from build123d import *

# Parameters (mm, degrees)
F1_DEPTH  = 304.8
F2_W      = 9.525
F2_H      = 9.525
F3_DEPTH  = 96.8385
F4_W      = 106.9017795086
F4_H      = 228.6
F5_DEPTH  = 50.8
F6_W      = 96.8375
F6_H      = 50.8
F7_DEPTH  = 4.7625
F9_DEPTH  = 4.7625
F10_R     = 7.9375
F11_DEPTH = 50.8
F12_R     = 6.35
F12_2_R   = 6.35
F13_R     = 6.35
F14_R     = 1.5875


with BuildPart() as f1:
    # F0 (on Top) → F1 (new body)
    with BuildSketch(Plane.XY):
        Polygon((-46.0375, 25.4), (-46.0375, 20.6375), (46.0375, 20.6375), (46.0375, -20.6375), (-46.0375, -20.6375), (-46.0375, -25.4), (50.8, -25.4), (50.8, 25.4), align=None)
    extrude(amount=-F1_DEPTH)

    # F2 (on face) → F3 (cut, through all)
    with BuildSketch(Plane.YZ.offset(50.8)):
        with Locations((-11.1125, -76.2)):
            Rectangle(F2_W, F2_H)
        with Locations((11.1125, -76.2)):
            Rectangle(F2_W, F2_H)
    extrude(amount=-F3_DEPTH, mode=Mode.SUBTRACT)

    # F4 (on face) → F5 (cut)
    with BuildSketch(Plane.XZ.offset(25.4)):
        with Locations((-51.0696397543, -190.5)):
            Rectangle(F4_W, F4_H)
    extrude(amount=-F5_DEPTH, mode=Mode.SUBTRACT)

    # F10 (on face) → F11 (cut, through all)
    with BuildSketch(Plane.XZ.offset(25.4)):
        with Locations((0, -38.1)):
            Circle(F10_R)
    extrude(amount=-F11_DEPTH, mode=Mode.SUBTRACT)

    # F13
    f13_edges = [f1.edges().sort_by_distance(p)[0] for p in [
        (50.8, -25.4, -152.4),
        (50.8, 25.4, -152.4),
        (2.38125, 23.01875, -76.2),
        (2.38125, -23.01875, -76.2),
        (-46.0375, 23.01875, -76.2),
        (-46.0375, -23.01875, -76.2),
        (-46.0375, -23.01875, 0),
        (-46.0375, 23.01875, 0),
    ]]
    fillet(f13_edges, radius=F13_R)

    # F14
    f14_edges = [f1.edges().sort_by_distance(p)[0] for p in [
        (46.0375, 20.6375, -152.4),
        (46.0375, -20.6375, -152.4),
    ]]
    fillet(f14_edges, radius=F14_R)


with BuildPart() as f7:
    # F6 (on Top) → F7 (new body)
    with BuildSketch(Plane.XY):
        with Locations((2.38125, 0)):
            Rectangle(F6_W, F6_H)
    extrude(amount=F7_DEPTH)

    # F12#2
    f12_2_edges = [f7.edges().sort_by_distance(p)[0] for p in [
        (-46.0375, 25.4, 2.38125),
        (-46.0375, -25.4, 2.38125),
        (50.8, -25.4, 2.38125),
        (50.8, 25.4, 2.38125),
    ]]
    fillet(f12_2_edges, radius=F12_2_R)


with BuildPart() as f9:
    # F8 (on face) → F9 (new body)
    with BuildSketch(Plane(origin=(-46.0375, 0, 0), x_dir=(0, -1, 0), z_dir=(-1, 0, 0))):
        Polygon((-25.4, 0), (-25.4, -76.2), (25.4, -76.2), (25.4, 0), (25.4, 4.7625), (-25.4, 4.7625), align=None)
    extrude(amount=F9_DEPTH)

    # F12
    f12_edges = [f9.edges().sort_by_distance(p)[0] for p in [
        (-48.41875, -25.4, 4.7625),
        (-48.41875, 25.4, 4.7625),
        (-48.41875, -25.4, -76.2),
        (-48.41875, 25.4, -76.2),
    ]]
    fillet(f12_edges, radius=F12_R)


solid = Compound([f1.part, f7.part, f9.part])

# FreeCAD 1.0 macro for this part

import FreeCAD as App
import Part
import Sketcher
from FreeCAD import Vector
Q = App.Units.Quantity


def edges_at(feature, points):
    """Names of the edges that pass closest to the given points."""
    edges = feature.Shape.Edges
    near = lambda p: min(range(len(edges)), key=lambda i: edges[i].distToShape(Part.Vertex(*p))[0])
    return sorted({f"Edge{near(p) + 1}" for p in points})

doc = App.newDocument("Part")
params = doc.addObject("Spreadsheet::Sheet", "Params")
for row, (alias, value) in enumerate([
    ("sketch1_height", "2 in"),
    ("sketch1_width", "3.625 in"),
    ("sketch1_height2", "0.1875 in"),
    ("pad1_length", "12 in"),
    ("sketch2_width", "0.375 in"),
    ("sketch3_height", "9 in"),
    ("pocket2_length", "2 in"),
    ("sketch4_diameter", "0.625 in"),
    ("fillet_radius", "0.25 in"),
    ("fillet2_radius", "0.0625 in"),
    ("sketch5_height", "2 in"),
    ("sketch5_width", "3.8125 in"),
    ("pad2_length", "0.1875 in"),
    ("fillet3_radius", "0.25 in"),
    ("sketch6_width", "2 in"),
    ("sketch6_height", "3.1875 in"),
    ("pad3_length", "0.1875 in"),
    ("fillet4_radius", "0.25 in"),
], start=1):
    params.set(f"A{row}", alias)
    params.set(f"B{row}", "=" + value)
    params.setAlias(f"B{row}", alias)

body = doc.addObject("PartDesign::Body", "Body")

sketch1 = body.newObject("Sketcher::SketchObject", "Sketch")
sketch1.AttachmentSupport = (doc.getObject("XY_Plane"), [""])
sketch1.MapMode = "FlatFace"
sketch1.addGeometry(Part.LineSegment(Vector(-46.0375, 25.4, 0), Vector(-46.0375, 20.6375, 0)), False)
sketch1.addGeometry(Part.LineSegment(Vector(-46.0375, 20.6375, 0), Vector(46.0375, 20.6375, 0)), False)
sketch1.addGeometry(Part.LineSegment(Vector(46.0375, 20.6375, 0), Vector(46.0375, -20.6375, 0)), False)
sketch1.addGeometry(Part.LineSegment(Vector(46.0375, -20.6375, 0), Vector(-46.0375, -20.6375, 0)), False)
sketch1.addGeometry(Part.LineSegment(Vector(-46.0375, -20.6375, 0), Vector(-46.0375, -25.4, 0)), False)
sketch1.addGeometry(Part.LineSegment(Vector(-46.0375, -25.4, 0), Vector(50.8, -25.4, 0)), False)
sketch1.addGeometry(Part.LineSegment(Vector(50.8, -25.4, 0), Vector(50.8, 25.4, 0)), False)
sketch1.addGeometry(Part.LineSegment(Vector(50.8, 25.4, 0), Vector(-46.0375, 25.4, 0)), False)
sketch1.addConstraint(Sketcher.Constraint("Coincident", 0, 2, 1, 1))
sketch1.addConstraint(Sketcher.Constraint("Coincident", 1, 2, 2, 1))
sketch1.addConstraint(Sketcher.Constraint("Coincident", 2, 2, 3, 1))
sketch1.addConstraint(Sketcher.Constraint("Coincident", 3, 2, 4, 1))
sketch1.addConstraint(Sketcher.Constraint("Coincident", 4, 2, 5, 1))
sketch1.addConstraint(Sketcher.Constraint("Coincident", 5, 2, 6, 1))
sketch1.addConstraint(Sketcher.Constraint("Coincident", 6, 2, 7, 1))
sketch1.addConstraint(Sketcher.Constraint("Coincident", 7, 2, 0, 1))
sketch1.addConstraint(Sketcher.Constraint("Vertical", 0))
sketch1.addConstraint(Sketcher.Constraint("Horizontal", 1))
sketch1.addConstraint(Sketcher.Constraint("Vertical", 2))
sketch1.addConstraint(Sketcher.Constraint("Horizontal", 3))
sketch1.addConstraint(Sketcher.Constraint("Vertical", 4))
sketch1.addConstraint(Sketcher.Constraint("Horizontal", 5))
sketch1.addConstraint(Sketcher.Constraint("Vertical", 6))
sketch1.addConstraint(Sketcher.Constraint("Horizontal", 7))
sketch1.addConstraint(Sketcher.Constraint("Symmetric", 0, 2, 2, 2, -1, 1))
sketch1.addConstraint(Sketcher.Constraint("Symmetric", 4, 2, 7, 2, -1))
sketch1.addConstraint(Sketcher.Constraint("DistanceY", 6, 1, 6, 2, Q("2 in")))
sketch1.addConstraint(Sketcher.Constraint("DistanceX", -1, 1, 5, 2, Q("2 in")))
sketch1.addConstraint(Sketcher.Constraint("DistanceX", 1, 1, 1, 2, Q("3.625 in")))
sketch1.addConstraint(Sketcher.Constraint("DistanceY", 0, 2, 0, 1, Q("0.1875 in")))
sketch1.setExpression("Constraints[18]", "Params.sketch1_height")
sketch1.setExpression("Constraints[20]", "Params.sketch1_width")
sketch1.setExpression("Constraints[21]", "Params.sketch1_height2")
pad1 = body.newObject("PartDesign::Pad", "Pad")
pad1.Profile = sketch1
pad1.setExpression("Length", "Params.pad1_length")
pad1.Reversed = True

sketch2 = body.newObject("Sketcher::SketchObject", "Sketch001")
sketch2.AttachmentSupport = (doc.getObject("YZ_Plane"), [""])
sketch2.MapMode = "FlatFace"
sketch2.AttachmentOffset = App.Placement(Vector(0, 0, 2 * 25.4), App.Rotation())
sketch2.addGeometry(Part.LineSegment(Vector(-15.875, -71.4375, 0), Vector(-15.875, -80.9625, 0)), False)
sketch2.addGeometry(Part.LineSegment(Vector(-15.875, -80.9625, 0), Vector(-6.35, -80.9625, 0)), False)
sketch2.addGeometry(Part.LineSegment(Vector(-6.35, -80.9625, 0), Vector(-6.35, -71.4375, 0)), False)
sketch2.addGeometry(Part.LineSegment(Vector(-6.35, -71.4375, 0), Vector(-15.875, -71.4375, 0)), False)
sketch2.addGeometry(Part.LineSegment(Vector(6.35, -71.4375, 0), Vector(6.35, -80.9625, 0)), False)
sketch2.addGeometry(Part.LineSegment(Vector(6.35, -80.9625, 0), Vector(15.875, -80.9625, 0)), False)
sketch2.addGeometry(Part.LineSegment(Vector(15.875, -80.9625, 0), Vector(15.875, -71.4375, 0)), False)
sketch2.addGeometry(Part.LineSegment(Vector(15.875, -71.4375, 0), Vector(6.35, -71.4375, 0)), False)
sketch2.addConstraint(Sketcher.Constraint("Coincident", 0, 2, 1, 1))
sketch2.addConstraint(Sketcher.Constraint("Coincident", 1, 2, 2, 1))
sketch2.addConstraint(Sketcher.Constraint("Coincident", 2, 2, 3, 1))
sketch2.addConstraint(Sketcher.Constraint("Coincident", 3, 2, 0, 1))
sketch2.addConstraint(Sketcher.Constraint("Coincident", 4, 2, 5, 1))
sketch2.addConstraint(Sketcher.Constraint("Coincident", 5, 2, 6, 1))
sketch2.addConstraint(Sketcher.Constraint("Coincident", 6, 2, 7, 1))
sketch2.addConstraint(Sketcher.Constraint("Coincident", 7, 2, 4, 1))
sketch2.addConstraint(Sketcher.Constraint("Vertical", 0))
sketch2.addConstraint(Sketcher.Constraint("Horizontal", 1))
sketch2.addConstraint(Sketcher.Constraint("Vertical", 2))
sketch2.addConstraint(Sketcher.Constraint("Horizontal", 3))
sketch2.addConstraint(Sketcher.Constraint("Vertical", 4))
sketch2.addConstraint(Sketcher.Constraint("Horizontal", 5))
sketch2.addConstraint(Sketcher.Constraint("Vertical", 6))
sketch2.addConstraint(Sketcher.Constraint("Horizontal", 7))
sketch2.addConstraint(Sketcher.Constraint("Symmetric", 1, 2, 4, 2, -2))
sketch2.addConstraint(Sketcher.Constraint("Symmetric", 3, 2, 6, 2, -2))
sketch2.addConstraint(Sketcher.Constraint("Equal", 7, 0))
sketch2.addConstraint(Sketcher.Constraint("DistanceX", 1, 2, 4, 2, Q("0.5 in")))
sketch2.addConstraint(Sketcher.Constraint("DistanceX", 1, 1, 1, 2, Q("0.375 in")))
sketch2.addConstraint(Sketcher.Constraint("DistanceY", 0, 2, -1, 1, Q("3.1875 in")))
sketch2.setExpression("Constraints[20]", "Params.sketch2_width")
pocket1 = body.newObject("PartDesign::Pocket", "Pocket")
pocket1.Profile = sketch2
pocket1.Type = "ThroughAll"

sketch3 = body.newObject("Sketcher::SketchObject", "Sketch002")
sketch3.AttachmentSupport = (doc.getObject("XZ_Plane"), [""])
sketch3.MapMode = "FlatFace"
sketch3.AttachmentOffset = App.Placement(Vector(0, 0, 1 * 25.4), App.Rotation())
sketch3.addGeometry(Part.LineSegment(Vector(-104.52053, -76.2, 0), Vector(-104.52053, -304.8, 0)), False)
sketch3.addGeometry(Part.LineSegment(Vector(-104.52053, -304.8, 0), Vector(2.38125, -304.8, 0)), False)
sketch3.addGeometry(Part.LineSegment(Vector(2.38125, -304.8, 0), Vector(2.38125, -76.2, 0)), False)
sketch3.addGeometry(Part.LineSegment(Vector(2.38125, -76.2, 0), Vector(-104.52053, -76.2, 0)), False)
sketch3.addConstraint(Sketcher.Constraint("Coincident", 0, 2, 1, 1))
sketch3.addConstraint(Sketcher.Constraint("Coincident", 1, 2, 2, 1))
sketch3.addConstraint(Sketcher.Constraint("Coincident", 2, 2, 3, 1))
sketch3.addConstraint(Sketcher.Constraint("Coincident", 3, 2, 0, 1))
sketch3.addConstraint(Sketcher.Constraint("Vertical", 0))
sketch3.addConstraint(Sketcher.Constraint("Horizontal", 1))
sketch3.addConstraint(Sketcher.Constraint("Vertical", 2))
sketch3.addConstraint(Sketcher.Constraint("Horizontal", 3))
sketch3.addConstraint(Sketcher.Constraint("DistanceY", 0, 2, 0, 1, Q("9 in")))
sketch3.addConstraint(Sketcher.Constraint("DistanceY", 0, 2, -1, 1, Q("12 in")))
sketch3.addConstraint(Sketcher.Constraint("DistanceX", -1, 1, 1, 2, Q("0.09375 in")))
sketch3.addConstraint(Sketcher.Constraint("DistanceX", 1, 1, 1, 2, 106.90178))
sketch3.setExpression("Constraints[8]", "Params.sketch3_height")
pocket2 = body.newObject("PartDesign::Pocket", "Pocket001")
pocket2.Profile = sketch3
pocket2.setExpression("Length", "Params.pocket2_length")

sketch4 = body.newObject("Sketcher::SketchObject", "Sketch003")
sketch4.AttachmentSupport = (doc.getObject("XZ_Plane"), [""])
sketch4.MapMode = "FlatFace"
sketch4.AttachmentOffset = App.Placement(Vector(0, 0, 1 * 25.4), App.Rotation())
sketch4.addGeometry(Part.Circle(Vector(0, -38.1, 0), Vector(0, 0, 1), 7.9375), False)
sketch4.addConstraint(Sketcher.Constraint("PointOnObject", 0, 3, -2))
sketch4.addConstraint(Sketcher.Constraint("Diameter", 0, Q("0.625 in")))
sketch4.addConstraint(Sketcher.Constraint("DistanceY", 0, 3, -1, 1, Q("1.5 in")))
sketch4.setExpression("Constraints[1]", "Params.sketch4_diameter")
pocket3 = body.newObject("PartDesign::Pocket", "Pocket002")
pocket3.Profile = sketch4
pocket3.Type = "ThroughAll"
doc.recompute()

fillet = body.newObject("PartDesign::Fillet", "Fillet")
fillet.Base = (pocket3, edges_at(pocket3, [
    (50.8, -25.4, -152.4),
    (50.8, 25.4, -152.4),
    (2.381, 23.019, -76.2),
    (2.381, -23.019, -76.2),
    (-46.038, 23.019, -76.2),
    (-46.038, -23.019, -76.2),
    (-46.038, -23.019, 0),
    (-46.038, 23.019, 0),
]))
fillet.setExpression("Radius", "Params.fillet_radius")
doc.recompute()

fillet2 = body.newObject("PartDesign::Fillet", "Fillet001")
fillet2.Base = (fillet, edges_at(fillet, [(46.038, 20.637, -152.4), (46.038, -20.637, -152.4)]))
fillet2.setExpression("Radius", "Params.fillet2_radius")
body2 = doc.addObject("PartDesign::Body", "Body001")

sketch5 = body2.newObject("Sketcher::SketchObject", "Sketch004")
sketch5.AttachmentSupport = (doc.getObject("XY_Plane001"), [""])
sketch5.MapMode = "FlatFace"
sketch5.addGeometry(Part.LineSegment(Vector(-46.0375, 25.4, 0), Vector(-46.0375, -25.4, 0)), False)
sketch5.addGeometry(Part.LineSegment(Vector(-46.0375, -25.4, 0), Vector(50.8, -25.4, 0)), False)
sketch5.addGeometry(Part.LineSegment(Vector(50.8, -25.4, 0), Vector(50.8, 25.4, 0)), False)
sketch5.addGeometry(Part.LineSegment(Vector(50.8, 25.4, 0), Vector(-46.0375, 25.4, 0)), False)
sketch5.addConstraint(Sketcher.Constraint("Coincident", 0, 2, 1, 1))
sketch5.addConstraint(Sketcher.Constraint("Coincident", 1, 2, 2, 1))
sketch5.addConstraint(Sketcher.Constraint("Coincident", 2, 2, 3, 1))
sketch5.addConstraint(Sketcher.Constraint("Coincident", 3, 2, 0, 1))
sketch5.addConstraint(Sketcher.Constraint("Vertical", 0))
sketch5.addConstraint(Sketcher.Constraint("Horizontal", 1))
sketch5.addConstraint(Sketcher.Constraint("Vertical", 2))
sketch5.addConstraint(Sketcher.Constraint("Horizontal", 3))
sketch5.addConstraint(Sketcher.Constraint("DistanceY", 0, 2, 0, 1, Q("2 in")))
sketch5.addConstraint(Sketcher.Constraint("DistanceY", 0, 2, -1, 1, Q("1 in")))
sketch5.addConstraint(Sketcher.Constraint("DistanceX", -1, 1, 1, 2, Q("2 in")))
sketch5.addConstraint(Sketcher.Constraint("DistanceX", 1, 1, 1, 2, Q("3.8125 in")))
sketch5.setExpression("Constraints[8]", "Params.sketch5_height")
sketch5.setExpression("Constraints[11]", "Params.sketch5_width")
pad2 = body2.newObject("PartDesign::Pad", "Pad001")
pad2.Profile = sketch5
pad2.setExpression("Length", "Params.pad2_length")
doc.recompute()

fillet3 = body2.newObject("PartDesign::Fillet", "Fillet002")
fillet3.Base = (pad2, edges_at(pad2, [
    (-46.038, 25.4, 2.381),
    (-46.038, -25.4, 2.381),
    (50.8, -25.4, 2.381),
    (50.8, 25.4, 2.381),
]))
fillet3.setExpression("Radius", "Params.fillet3_radius")
body3 = doc.addObject("PartDesign::Body", "Body002")

sketch6 = body3.newObject("Sketcher::SketchObject", "Sketch005")
sketch6.AttachmentSupport = (doc.getObject("YZ_Plane002"), [""])
sketch6.MapMode = "FlatFace"
sketch6.AttachmentOffset = App.Placement(Vector(0, 0, -1.8125 * 25.4), App.Rotation())
sketch6.addGeometry(Part.LineSegment(Vector(25.4, -76.2, 0), Vector(-25.4, -76.2, 0)), False)
sketch6.addGeometry(Part.LineSegment(Vector(-25.4, -76.2, 0), Vector(-25.4, 4.7625, 0)), False)
sketch6.addGeometry(Part.LineSegment(Vector(-25.4, 4.7625, 0), Vector(25.4, 4.7625, 0)), False)
sketch6.addGeometry(Part.LineSegment(Vector(25.4, 4.7625, 0), Vector(25.4, -76.2, 0)), False)
sketch6.addConstraint(Sketcher.Constraint("Coincident", 0, 2, 1, 1))
sketch6.addConstraint(Sketcher.Constraint("Coincident", 1, 2, 2, 1))
sketch6.addConstraint(Sketcher.Constraint("Coincident", 2, 2, 3, 1))
sketch6.addConstraint(Sketcher.Constraint("Coincident", 3, 2, 0, 1))
sketch6.addConstraint(Sketcher.Constraint("Horizontal", 0))
sketch6.addConstraint(Sketcher.Constraint("Vertical", 1))
sketch6.addConstraint(Sketcher.Constraint("Horizontal", 2))
sketch6.addConstraint(Sketcher.Constraint("Vertical", 3))
sketch6.addConstraint(Sketcher.Constraint("DistanceX", 0, 2, 0, 1, Q("2 in")))
sketch6.addConstraint(Sketcher.Constraint("DistanceX", 0, 2, -1, 1, Q("1 in")))
sketch6.addConstraint(Sketcher.Constraint("DistanceY", 0, 2, -1, 1, Q("3 in")))
sketch6.addConstraint(Sketcher.Constraint("DistanceY", 1, 1, 1, 2, Q("3.1875 in")))
sketch6.setExpression("Constraints[8]", "Params.sketch6_width")
sketch6.setExpression("Constraints[11]", "Params.sketch6_height")
pad3 = body3.newObject("PartDesign::Pad", "Pad002")
pad3.Profile = sketch6
pad3.setExpression("Length", "Params.pad3_length")
pad3.Reversed = True
doc.recompute()

fillet4 = body3.newObject("PartDesign::Fillet", "Fillet003")
fillet4.Base = (pad3, edges_at(pad3, [
    (-48.419, -25.4, 4.763),
    (-48.419, 25.4, 4.763),
    (-48.419, -25.4, -76.2),
    (-48.419, 25.4, -76.2),
]))
fillet4.setExpression("Radius", "Params.fillet4_radius")

doc.recompute()
